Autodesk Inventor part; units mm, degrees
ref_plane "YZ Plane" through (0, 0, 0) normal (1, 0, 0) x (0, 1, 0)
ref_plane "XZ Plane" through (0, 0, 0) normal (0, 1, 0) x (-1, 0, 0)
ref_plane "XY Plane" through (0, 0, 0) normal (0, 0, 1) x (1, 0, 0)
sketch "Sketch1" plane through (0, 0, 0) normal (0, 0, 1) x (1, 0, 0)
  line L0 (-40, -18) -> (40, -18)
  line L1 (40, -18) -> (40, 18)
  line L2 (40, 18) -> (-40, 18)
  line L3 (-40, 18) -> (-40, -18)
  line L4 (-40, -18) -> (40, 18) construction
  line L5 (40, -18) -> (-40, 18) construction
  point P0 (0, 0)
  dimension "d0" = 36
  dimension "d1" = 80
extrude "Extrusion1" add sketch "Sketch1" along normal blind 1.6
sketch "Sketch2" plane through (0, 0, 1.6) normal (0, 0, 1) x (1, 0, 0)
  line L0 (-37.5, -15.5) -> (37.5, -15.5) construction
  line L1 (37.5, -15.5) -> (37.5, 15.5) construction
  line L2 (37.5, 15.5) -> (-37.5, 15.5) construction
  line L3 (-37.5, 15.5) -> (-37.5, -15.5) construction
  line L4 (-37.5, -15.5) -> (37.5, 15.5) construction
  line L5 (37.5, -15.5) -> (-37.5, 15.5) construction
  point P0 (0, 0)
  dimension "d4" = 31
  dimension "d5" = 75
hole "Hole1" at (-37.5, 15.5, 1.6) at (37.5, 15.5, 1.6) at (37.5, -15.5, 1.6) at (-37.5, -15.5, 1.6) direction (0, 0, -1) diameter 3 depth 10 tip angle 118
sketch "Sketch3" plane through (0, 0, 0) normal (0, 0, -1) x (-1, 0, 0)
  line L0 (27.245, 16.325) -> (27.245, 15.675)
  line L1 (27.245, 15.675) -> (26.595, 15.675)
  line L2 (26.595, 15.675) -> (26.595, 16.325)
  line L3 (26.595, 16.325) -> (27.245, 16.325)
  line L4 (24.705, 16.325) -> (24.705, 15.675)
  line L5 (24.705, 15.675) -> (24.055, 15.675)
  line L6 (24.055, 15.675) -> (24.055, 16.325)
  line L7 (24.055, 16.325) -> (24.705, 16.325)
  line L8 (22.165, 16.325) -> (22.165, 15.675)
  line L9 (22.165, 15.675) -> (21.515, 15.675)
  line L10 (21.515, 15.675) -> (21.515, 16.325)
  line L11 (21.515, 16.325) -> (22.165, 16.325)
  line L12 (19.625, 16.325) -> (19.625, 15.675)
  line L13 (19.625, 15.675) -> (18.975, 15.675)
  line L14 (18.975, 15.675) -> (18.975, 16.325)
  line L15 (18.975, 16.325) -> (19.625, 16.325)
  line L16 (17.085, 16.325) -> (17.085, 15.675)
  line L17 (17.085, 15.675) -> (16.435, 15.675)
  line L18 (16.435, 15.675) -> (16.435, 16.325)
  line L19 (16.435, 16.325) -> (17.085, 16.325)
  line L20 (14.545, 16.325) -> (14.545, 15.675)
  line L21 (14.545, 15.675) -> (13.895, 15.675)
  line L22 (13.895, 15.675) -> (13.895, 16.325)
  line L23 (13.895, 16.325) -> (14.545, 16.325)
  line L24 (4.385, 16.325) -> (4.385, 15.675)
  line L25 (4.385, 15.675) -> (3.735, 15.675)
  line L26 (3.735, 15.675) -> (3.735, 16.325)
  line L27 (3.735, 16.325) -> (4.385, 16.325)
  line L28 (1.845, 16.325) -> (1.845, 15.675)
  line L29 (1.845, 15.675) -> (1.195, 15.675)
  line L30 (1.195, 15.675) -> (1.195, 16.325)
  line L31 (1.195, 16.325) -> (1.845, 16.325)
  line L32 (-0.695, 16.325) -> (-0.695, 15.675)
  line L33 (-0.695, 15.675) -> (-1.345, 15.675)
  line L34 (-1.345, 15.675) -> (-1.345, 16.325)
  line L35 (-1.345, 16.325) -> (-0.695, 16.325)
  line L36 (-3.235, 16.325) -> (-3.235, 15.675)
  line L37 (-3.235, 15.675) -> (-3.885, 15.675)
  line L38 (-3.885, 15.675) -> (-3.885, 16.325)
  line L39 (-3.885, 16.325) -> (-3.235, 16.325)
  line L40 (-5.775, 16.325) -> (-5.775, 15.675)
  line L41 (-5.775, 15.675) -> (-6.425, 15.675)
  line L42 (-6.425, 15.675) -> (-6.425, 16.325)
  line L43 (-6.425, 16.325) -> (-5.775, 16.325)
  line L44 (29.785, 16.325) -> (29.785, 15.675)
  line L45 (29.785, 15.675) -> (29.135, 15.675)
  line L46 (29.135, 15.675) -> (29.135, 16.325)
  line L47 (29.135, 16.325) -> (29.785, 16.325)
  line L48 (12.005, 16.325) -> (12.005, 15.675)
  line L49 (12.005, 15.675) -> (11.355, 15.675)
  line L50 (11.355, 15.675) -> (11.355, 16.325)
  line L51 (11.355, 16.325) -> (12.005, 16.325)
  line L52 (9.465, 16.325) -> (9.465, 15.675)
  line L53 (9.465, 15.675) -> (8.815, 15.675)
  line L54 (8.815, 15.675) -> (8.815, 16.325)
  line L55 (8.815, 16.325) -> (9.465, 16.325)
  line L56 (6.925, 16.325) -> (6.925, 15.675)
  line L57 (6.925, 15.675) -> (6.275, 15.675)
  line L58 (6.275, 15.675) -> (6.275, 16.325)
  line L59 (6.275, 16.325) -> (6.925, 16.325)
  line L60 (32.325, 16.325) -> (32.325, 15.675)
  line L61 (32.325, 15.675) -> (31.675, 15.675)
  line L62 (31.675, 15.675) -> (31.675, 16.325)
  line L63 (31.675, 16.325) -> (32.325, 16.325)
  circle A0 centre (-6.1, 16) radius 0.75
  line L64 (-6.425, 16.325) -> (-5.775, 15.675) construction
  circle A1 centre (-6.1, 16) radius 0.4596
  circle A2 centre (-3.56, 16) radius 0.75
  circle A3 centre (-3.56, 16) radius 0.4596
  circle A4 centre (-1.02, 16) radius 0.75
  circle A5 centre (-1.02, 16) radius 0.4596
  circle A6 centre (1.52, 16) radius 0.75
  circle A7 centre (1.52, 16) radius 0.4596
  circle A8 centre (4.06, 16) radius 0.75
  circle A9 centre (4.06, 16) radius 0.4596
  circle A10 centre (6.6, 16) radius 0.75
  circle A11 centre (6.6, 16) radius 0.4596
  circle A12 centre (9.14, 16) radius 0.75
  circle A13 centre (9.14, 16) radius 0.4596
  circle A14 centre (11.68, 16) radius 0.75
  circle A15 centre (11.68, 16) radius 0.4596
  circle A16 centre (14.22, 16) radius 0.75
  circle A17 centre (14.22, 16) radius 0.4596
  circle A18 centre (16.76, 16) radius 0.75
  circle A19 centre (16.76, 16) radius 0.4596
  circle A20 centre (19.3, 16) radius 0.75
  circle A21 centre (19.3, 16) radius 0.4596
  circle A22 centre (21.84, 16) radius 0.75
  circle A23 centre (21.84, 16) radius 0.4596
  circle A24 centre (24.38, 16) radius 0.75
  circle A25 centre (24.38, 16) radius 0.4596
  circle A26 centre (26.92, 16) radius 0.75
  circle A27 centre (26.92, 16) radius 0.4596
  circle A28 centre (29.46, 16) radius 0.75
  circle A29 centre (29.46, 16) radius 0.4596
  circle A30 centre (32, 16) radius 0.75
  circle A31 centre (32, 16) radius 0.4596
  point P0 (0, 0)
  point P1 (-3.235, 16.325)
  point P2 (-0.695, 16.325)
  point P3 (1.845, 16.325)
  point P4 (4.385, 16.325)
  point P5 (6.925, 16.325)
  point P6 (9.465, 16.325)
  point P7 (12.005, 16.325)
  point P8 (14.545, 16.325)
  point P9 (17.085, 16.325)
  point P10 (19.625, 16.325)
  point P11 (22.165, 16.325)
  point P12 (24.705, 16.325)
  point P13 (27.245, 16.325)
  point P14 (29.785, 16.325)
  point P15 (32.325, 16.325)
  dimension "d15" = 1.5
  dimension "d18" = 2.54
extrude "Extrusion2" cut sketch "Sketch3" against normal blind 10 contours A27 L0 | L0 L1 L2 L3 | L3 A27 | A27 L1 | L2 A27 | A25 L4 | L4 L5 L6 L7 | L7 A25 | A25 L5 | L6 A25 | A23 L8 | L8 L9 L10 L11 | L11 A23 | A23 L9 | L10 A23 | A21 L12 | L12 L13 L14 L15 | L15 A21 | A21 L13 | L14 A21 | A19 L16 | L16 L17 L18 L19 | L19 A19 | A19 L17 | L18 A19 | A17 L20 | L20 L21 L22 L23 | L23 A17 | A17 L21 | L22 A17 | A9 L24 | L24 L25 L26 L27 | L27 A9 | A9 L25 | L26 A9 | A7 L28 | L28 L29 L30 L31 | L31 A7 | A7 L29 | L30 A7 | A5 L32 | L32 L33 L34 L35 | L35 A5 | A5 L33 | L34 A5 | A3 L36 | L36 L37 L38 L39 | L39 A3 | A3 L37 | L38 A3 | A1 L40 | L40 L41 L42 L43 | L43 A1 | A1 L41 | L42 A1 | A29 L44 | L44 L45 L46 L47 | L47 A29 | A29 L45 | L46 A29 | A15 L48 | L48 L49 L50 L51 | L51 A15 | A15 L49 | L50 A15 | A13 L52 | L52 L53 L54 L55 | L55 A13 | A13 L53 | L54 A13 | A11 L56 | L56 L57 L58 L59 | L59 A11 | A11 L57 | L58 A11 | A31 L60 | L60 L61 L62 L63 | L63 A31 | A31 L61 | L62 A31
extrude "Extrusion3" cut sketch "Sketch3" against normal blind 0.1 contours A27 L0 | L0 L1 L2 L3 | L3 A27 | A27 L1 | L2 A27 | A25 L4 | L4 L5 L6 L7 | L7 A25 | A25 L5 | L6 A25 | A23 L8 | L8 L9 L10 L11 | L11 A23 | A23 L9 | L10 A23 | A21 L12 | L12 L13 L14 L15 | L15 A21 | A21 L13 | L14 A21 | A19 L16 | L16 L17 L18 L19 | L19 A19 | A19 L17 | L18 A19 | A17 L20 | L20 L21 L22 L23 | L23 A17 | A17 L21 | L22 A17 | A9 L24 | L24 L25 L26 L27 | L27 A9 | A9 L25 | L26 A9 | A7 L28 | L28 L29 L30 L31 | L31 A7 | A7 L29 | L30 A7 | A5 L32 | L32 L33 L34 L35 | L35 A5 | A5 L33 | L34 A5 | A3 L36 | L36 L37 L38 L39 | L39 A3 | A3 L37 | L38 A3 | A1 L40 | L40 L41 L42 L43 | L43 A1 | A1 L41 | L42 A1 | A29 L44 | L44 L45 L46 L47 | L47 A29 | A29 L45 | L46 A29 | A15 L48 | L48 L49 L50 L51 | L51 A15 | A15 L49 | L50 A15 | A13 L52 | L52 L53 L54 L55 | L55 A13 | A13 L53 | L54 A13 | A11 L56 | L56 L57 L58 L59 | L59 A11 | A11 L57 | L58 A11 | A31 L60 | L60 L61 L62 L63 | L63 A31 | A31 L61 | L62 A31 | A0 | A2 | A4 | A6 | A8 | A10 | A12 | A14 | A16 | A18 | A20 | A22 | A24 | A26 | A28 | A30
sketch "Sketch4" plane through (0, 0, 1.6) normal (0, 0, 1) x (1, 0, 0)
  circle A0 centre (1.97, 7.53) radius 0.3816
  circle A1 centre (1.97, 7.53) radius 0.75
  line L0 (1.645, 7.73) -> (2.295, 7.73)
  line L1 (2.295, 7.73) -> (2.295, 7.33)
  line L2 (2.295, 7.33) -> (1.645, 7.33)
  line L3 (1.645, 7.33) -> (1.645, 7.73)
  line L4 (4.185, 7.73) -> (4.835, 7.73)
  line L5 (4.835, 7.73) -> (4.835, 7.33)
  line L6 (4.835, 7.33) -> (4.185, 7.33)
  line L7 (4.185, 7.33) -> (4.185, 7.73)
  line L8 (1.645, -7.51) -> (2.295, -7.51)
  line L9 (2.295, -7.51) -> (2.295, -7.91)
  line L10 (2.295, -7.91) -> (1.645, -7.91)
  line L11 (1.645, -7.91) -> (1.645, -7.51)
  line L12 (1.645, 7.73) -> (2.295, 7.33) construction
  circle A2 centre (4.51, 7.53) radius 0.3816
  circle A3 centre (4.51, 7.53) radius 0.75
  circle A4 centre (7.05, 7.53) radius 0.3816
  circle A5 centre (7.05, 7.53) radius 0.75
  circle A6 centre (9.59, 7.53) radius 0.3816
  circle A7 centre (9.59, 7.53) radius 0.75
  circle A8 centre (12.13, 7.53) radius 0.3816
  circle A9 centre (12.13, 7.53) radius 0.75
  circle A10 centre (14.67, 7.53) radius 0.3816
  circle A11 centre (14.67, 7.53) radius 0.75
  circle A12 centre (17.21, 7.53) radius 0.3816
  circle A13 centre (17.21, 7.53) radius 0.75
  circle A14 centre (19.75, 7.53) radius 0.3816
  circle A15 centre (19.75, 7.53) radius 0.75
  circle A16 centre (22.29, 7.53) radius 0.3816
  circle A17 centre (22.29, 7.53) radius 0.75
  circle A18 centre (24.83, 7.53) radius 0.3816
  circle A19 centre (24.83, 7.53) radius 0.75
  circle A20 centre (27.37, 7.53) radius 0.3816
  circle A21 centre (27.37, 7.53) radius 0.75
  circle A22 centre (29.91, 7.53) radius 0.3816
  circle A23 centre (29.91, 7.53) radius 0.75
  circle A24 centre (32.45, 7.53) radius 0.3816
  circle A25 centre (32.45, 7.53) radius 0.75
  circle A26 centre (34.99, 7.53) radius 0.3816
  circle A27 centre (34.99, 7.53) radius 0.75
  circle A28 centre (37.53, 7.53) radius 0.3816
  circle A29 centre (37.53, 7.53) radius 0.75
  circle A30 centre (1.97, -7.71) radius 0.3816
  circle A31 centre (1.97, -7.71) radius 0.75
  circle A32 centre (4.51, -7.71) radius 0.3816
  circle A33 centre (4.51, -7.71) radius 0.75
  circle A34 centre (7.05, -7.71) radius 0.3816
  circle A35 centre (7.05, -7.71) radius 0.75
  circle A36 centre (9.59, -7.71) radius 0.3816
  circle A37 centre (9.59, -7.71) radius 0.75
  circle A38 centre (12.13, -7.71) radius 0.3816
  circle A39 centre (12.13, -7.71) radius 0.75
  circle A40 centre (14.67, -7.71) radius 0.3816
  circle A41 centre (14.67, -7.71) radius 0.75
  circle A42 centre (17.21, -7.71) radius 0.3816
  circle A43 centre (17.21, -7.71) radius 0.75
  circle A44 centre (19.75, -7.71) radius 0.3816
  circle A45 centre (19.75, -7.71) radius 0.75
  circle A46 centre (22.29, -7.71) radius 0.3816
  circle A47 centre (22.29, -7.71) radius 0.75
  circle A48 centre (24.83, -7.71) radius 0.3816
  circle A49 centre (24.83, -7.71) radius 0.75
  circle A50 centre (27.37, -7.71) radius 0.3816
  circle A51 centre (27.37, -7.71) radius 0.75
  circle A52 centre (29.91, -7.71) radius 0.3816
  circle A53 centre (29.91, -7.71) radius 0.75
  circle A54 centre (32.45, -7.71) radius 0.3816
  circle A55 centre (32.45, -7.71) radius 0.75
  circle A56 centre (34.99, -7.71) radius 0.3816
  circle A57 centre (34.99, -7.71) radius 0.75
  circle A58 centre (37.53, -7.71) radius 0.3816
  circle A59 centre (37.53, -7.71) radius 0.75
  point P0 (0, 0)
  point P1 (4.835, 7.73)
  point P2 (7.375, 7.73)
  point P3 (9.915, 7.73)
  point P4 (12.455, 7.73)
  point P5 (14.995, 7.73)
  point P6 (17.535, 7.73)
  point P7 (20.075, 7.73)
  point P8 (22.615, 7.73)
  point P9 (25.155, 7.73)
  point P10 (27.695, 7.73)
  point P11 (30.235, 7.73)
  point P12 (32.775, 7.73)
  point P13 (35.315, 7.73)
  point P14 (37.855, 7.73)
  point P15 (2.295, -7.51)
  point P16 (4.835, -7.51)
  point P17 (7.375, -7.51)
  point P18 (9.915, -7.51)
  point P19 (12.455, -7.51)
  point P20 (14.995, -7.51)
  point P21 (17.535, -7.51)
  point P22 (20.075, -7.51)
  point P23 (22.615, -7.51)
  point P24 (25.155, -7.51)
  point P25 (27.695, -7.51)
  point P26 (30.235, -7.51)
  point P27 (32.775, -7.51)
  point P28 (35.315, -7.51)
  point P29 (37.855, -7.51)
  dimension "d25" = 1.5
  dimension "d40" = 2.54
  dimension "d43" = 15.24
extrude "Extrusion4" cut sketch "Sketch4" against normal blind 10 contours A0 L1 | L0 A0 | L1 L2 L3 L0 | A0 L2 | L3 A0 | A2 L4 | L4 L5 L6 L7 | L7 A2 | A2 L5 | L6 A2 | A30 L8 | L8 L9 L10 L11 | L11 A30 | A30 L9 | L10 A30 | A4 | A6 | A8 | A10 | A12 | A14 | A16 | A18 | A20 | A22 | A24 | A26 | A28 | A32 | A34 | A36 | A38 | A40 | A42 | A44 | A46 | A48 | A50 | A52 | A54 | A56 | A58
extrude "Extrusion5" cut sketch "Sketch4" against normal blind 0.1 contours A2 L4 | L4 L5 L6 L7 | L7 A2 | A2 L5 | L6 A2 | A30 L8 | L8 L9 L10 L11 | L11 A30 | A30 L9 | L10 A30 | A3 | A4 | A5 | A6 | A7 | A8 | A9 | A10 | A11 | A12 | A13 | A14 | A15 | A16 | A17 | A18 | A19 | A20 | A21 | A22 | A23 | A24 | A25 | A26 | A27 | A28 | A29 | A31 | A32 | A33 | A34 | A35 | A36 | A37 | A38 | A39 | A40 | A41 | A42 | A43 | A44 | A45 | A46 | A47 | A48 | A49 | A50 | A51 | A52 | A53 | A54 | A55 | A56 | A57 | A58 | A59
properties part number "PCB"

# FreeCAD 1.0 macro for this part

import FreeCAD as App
import Part
import Sketcher


def add_polygon(sketch, points):
    """Adds a closed chain of lines whose ends are joined by coincident constraints."""
    first, n = sketch.GeometryCount, len(points)
    for a, b in zip(points, points[1:] + points[:1]):
        sketch.addGeometry(Part.LineSegment(App.Vector(*a, 0), App.Vector(*b, 0)), False)
    for i in range(n):
        sketch.addConstraint(Sketcher.Constraint("Coincident", first + i, 2, first + (i + 1) % n, 1))

doc = App.newDocument("Part")
body = doc.addObject("PartDesign::Body", "Body")

# Sketch on XY plane
sketch1 = body.newObject("Sketcher::SketchObject", "Sketch")
sketch1.AttachmentSupport = (doc.getObject("XY_Plane"), [""])
sketch1.MapMode = "FlatFace"
add_polygon(sketch1, [(-40, 18), (-40, -18), (40, -18), (40, 18)])  # lines 0-3
sketch1.addConstraint(Sketcher.Constraint("Vertical", 0))
sketch1.addConstraint(Sketcher.Constraint("Horizontal", 1))
sketch1.addConstraint(Sketcher.Constraint("Vertical", 2))
sketch1.addConstraint(Sketcher.Constraint("Horizontal", 3))
sketch1.addConstraint(Sketcher.Constraint("Symmetric", 0, 2, 2, 2, -1, 1))
sketch1.addConstraint(Sketcher.Constraint("DistanceX", 1, 1, 1, 2, 80.0))
sketch1.addConstraint(Sketcher.Constraint("DistanceY", 0, 2, 0, 1, 36.0))
pad1 = body.newObject("PartDesign::Pad", "Pad")
pad1.Profile = sketch1
pad1.Length = 1.6

# Sketch on XY plane
sketch2 = body.newObject("Sketcher::SketchObject", "Sketch001")
sketch2.AttachmentSupport = (doc.getObject("XY_Plane"), [""])
sketch2.MapMode = "FlatFace"
sketch2.AttachmentOffset = App.Placement(App.Vector(0, 0, 1.6), App.Rotation())
sketch2.addGeometry(Part.Circle(App.Vector(-37.5, 15.5, 0), App.Vector(0, 0, 1), 1.5), False)
sketch2.addGeometry(Part.Circle(App.Vector(37.5, 15.5, 0), App.Vector(0, 0, 1), 1.5), False)
sketch2.addGeometry(Part.Circle(App.Vector(37.5, -15.5, 0), App.Vector(0, 0, 1), 1.5), False)
sketch2.addGeometry(Part.Circle(App.Vector(-37.5, -15.5, 0), App.Vector(0, 0, 1), 1.5), False)
sketch2.addConstraint(Sketcher.Constraint("Equal", 0, 1))
sketch2.addConstraint(Sketcher.Constraint("Equal", 1, 2))
sketch2.addConstraint(Sketcher.Constraint("Equal", 2, 3))
sketch2.addConstraint(Sketcher.Constraint("Symmetric", 0, 3, 2, 3, -1, 1))
sketch2.addConstraint(Sketcher.Constraint("Symmetric", 1, 3, 3, 3, -1, 1))
sketch2.addConstraint(Sketcher.Constraint("Symmetric", 0, 3, 1, 3, -2))
sketch2.addConstraint(Sketcher.Constraint("Diameter", 0, 3.0))
sketch2.addConstraint(Sketcher.Constraint("DistanceX", 0, 3, 1, 3, 75.0))
sketch2.addConstraint(Sketcher.Constraint("DistanceY", 2, 3, 1, 3, 31.0))
doc.recompute()
hole = body.newObject("PartDesign::Hole", "Hole")
hole.Profile = sketch2
hole.ThreadType = "None"
hole.Diameter = 3
hole.DepthType = "Dimension"
hole.Depth = 10
hole.DrillPoint = "Angled"
hole.DrillPointAngle = 118

# Sketch on XY plane
sketch3 = body.newObject("Sketcher::SketchObject", "Sketch002")
sketch3.AttachmentSupport = (doc.getObject("XY_Plane"), [""])
sketch3.MapMode = "FlatFace"
sketch3.addGeometry(Part.Circle(App.Vector(-26.92, 16, 0), App.Vector(0, 0, 1), 0.4596), False)
sketch3.addGeometry(Part.Circle(App.Vector(-24.38, 16, 0), App.Vector(0, 0, 1), 0.4596), False)
sketch3.addGeometry(Part.Circle(App.Vector(-21.84, 16, 0), App.Vector(0, 0, 1), 0.4596), False)
sketch3.addGeometry(Part.Circle(App.Vector(-19.3, 16, 0), App.Vector(0, 0, 1), 0.4596), False)
sketch3.addGeometry(Part.Circle(App.Vector(-16.76, 16, 0), App.Vector(0, 0, 1), 0.4596), False)
sketch3.addGeometry(Part.Circle(App.Vector(-14.22, 16, 0), App.Vector(0, 0, 1), 0.4596), False)
sketch3.addGeometry(Part.Circle(App.Vector(-4.06, 16, 0), App.Vector(0, 0, 1), 0.4596), False)
sketch3.addGeometry(Part.Circle(App.Vector(-1.52, 16, 0), App.Vector(0, 0, 1), 0.4596), False)
sketch3.addGeometry(Part.Circle(App.Vector(1.02, 16, 0), App.Vector(0, 0, 1), 0.4596), False)
sketch3.addGeometry(Part.Circle(App.Vector(3.56, 16, 0), App.Vector(0, 0, 1), 0.4596), False)
sketch3.addGeometry(Part.Circle(App.Vector(6.1, 16, 0), App.Vector(0, 0, 1), 0.4596), False)
sketch3.addGeometry(Part.Circle(App.Vector(-29.46, 16, 0), App.Vector(0, 0, 1), 0.4596), False)
sketch3.addGeometry(Part.Circle(App.Vector(-11.68, 16, 0), App.Vector(0, 0, 1), 0.4596), False)
sketch3.addGeometry(Part.Circle(App.Vector(-9.14, 16, 0), App.Vector(0, 0, 1), 0.4596), False)
sketch3.addGeometry(Part.Circle(App.Vector(-6.6, 16, 0), App.Vector(0, 0, 1), 0.4596), False)
sketch3.addGeometry(Part.Circle(App.Vector(-32, 16, 0), App.Vector(0, 0, 1), 0.4596), False)
sketch3.addConstraint(Sketcher.Constraint("Equal", 0, 1))
sketch3.addConstraint(Sketcher.Constraint("Equal", 1, 2))
sketch3.addConstraint(Sketcher.Constraint("Equal", 2, 3))
sketch3.addConstraint(Sketcher.Constraint("Equal", 3, 4))
sketch3.addConstraint(Sketcher.Constraint("Equal", 4, 5))
sketch3.addConstraint(Sketcher.Constraint("Equal", 5, 6))
sketch3.addConstraint(Sketcher.Constraint("Equal", 6, 7))
sketch3.addConstraint(Sketcher.Constraint("Equal", 7, 8))
sketch3.addConstraint(Sketcher.Constraint("Equal", 8, 9))
sketch3.addConstraint(Sketcher.Constraint("Equal", 9, 10))
sketch3.addConstraint(Sketcher.Constraint("Equal", 10, 11))
sketch3.addConstraint(Sketcher.Constraint("Equal", 11, 12))
sketch3.addConstraint(Sketcher.Constraint("Equal", 12, 13))
sketch3.addConstraint(Sketcher.Constraint("Equal", 13, 14))
sketch3.addConstraint(Sketcher.Constraint("Equal", 14, 15))
sketch3.addConstraint(Sketcher.Constraint("Horizontal", 0, 3, 1, 3))
sketch3.addConstraint(Sketcher.Constraint("Horizontal", 1, 3, 2, 3))
sketch3.addConstraint(Sketcher.Constraint("Horizontal", 2, 3, 3, 3))
sketch3.addConstraint(Sketcher.Constraint("Horizontal", 3, 3, 4, 3))
sketch3.addConstraint(Sketcher.Constraint("Horizontal", 4, 3, 5, 3))
sketch3.addConstraint(Sketcher.Constraint("Horizontal", 5, 3, 6, 3))
sketch3.addConstraint(Sketcher.Constraint("Horizontal", 6, 3, 7, 3))
sketch3.addConstraint(Sketcher.Constraint("Horizontal", 7, 3, 8, 3))
sketch3.addConstraint(Sketcher.Constraint("Horizontal", 8, 3, 9, 3))
sketch3.addConstraint(Sketcher.Constraint("Horizontal", 9, 3, 10, 3))
sketch3.addConstraint(Sketcher.Constraint("Horizontal", 10, 3, 11, 3))
sketch3.addConstraint(Sketcher.Constraint("Horizontal", 11, 3, 12, 3))
sketch3.addConstraint(Sketcher.Constraint("Horizontal", 12, 3, 13, 3))
sketch3.addConstraint(Sketcher.Constraint("Horizontal", 13, 3, 14, 3))
sketch3.addConstraint(Sketcher.Constraint("Horizontal", 14, 3, 15, 3))
sketch3.addConstraint(Sketcher.Constraint("DistanceX", 0, 3, 1, 3, 2.54))
sketch3.addConstraint(Sketcher.Constraint("DistanceX", 1, 3, 2, 3, 2.54))
sketch3.addConstraint(Sketcher.Constraint("DistanceX", 2, 3, 3, 3, 2.54))
sketch3.addConstraint(Sketcher.Constraint("DistanceX", 3, 3, 4, 3, 2.54))
sketch3.addConstraint(Sketcher.Constraint("DistanceX", 4, 3, 5, 3, 2.54))
sketch3.addConstraint(Sketcher.Constraint("DistanceX", 6, 3, 7, 3, 2.54))
sketch3.addConstraint(Sketcher.Constraint("DistanceX", 7, 3, 8, 3, 2.54))
sketch3.addConstraint(Sketcher.Constraint("DistanceX", 8, 3, 9, 3, 2.54))
sketch3.addConstraint(Sketcher.Constraint("DistanceX", 9, 3, 10, 3, 2.54))
sketch3.addConstraint(Sketcher.Constraint("DistanceX", 11, 3, 0, 3, 2.54))
sketch3.addConstraint(Sketcher.Constraint("DistanceX", 5, 3, 12, 3, 2.54))
sketch3.addConstraint(Sketcher.Constraint("DistanceX", 12, 3, 13, 3, 2.54))
sketch3.addConstraint(Sketcher.Constraint("DistanceX", 14, 3, 6, 3, 2.54))
sketch3.addConstraint(Sketcher.Constraint("DistanceX", 13, 3, 14, 3, 2.54))
sketch3.addConstraint(Sketcher.Constraint("DistanceX", 15, 3, 11, 3, 2.54))
sketch3.addConstraint(Sketcher.Constraint("DistanceY", -1, 1, 0, 3, 16.0))
sketch3.addConstraint(Sketcher.Constraint("DistanceX", 15, 3, -1, 1, 32.0))
sketch3.addConstraint(Sketcher.Constraint("Diameter", 0, 0.9192))
pocket1 = body.newObject("PartDesign::Pocket", "Pocket")
pocket1.Profile = sketch3
pocket1.Length = 10
pocket1.Reversed = True

# Sketch on XY plane
sketch4 = body.newObject("Sketcher::SketchObject", "Sketch003")
sketch4.AttachmentSupport = (doc.getObject("XY_Plane"), [""])
sketch4.MapMode = "FlatFace"
sketch4.addGeometry(Part.Circle(App.Vector(-26.92, 16, 0), App.Vector(0, 0, 1), 0.75), False)
sketch4.addGeometry(Part.Circle(App.Vector(-24.38, 16, 0), App.Vector(0, 0, 1), 0.75), False)
sketch4.addGeometry(Part.Circle(App.Vector(-21.84, 16, 0), App.Vector(0, 0, 1), 0.75), False)
sketch4.addGeometry(Part.Circle(App.Vector(-19.3, 16, 0), App.Vector(0, 0, 1), 0.75), False)
sketch4.addGeometry(Part.Circle(App.Vector(-16.76, 16, 0), App.Vector(0, 0, 1), 0.75), False)
sketch4.addGeometry(Part.Circle(App.Vector(-14.22, 16, 0), App.Vector(0, 0, 1), 0.75), False)
sketch4.addGeometry(Part.Circle(App.Vector(-4.06, 16, 0), App.Vector(0, 0, 1), 0.75), False)
sketch4.addGeometry(Part.Circle(App.Vector(-1.52, 16, 0), App.Vector(0, 0, 1), 0.75), False)
sketch4.addGeometry(Part.Circle(App.Vector(1.02, 16, 0), App.Vector(0, 0, 1), 0.75), False)
sketch4.addGeometry(Part.Circle(App.Vector(3.56, 16, 0), App.Vector(0, 0, 1), 0.75), False)
sketch4.addGeometry(Part.Circle(App.Vector(6.1, 16, 0), App.Vector(0, 0, 1), 0.75), False)
sketch4.addGeometry(Part.Circle(App.Vector(-29.46, 16, 0), App.Vector(0, 0, 1), 0.75), False)
sketch4.addGeometry(Part.Circle(App.Vector(-11.68, 16, 0), App.Vector(0, 0, 1), 0.75), False)
sketch4.addGeometry(Part.Circle(App.Vector(-9.14, 16, 0), App.Vector(0, 0, 1), 0.75), False)
sketch4.addGeometry(Part.Circle(App.Vector(-6.6, 16, 0), App.Vector(0, 0, 1), 0.75), False)
sketch4.addGeometry(Part.Circle(App.Vector(-32, 16, 0), App.Vector(0, 0, 1), 0.75), False)
sketch4.addConstraint(Sketcher.Constraint("Equal", 0, 1))
sketch4.addConstraint(Sketcher.Constraint("Equal", 1, 2))
sketch4.addConstraint(Sketcher.Constraint("Equal", 2, 3))
sketch4.addConstraint(Sketcher.Constraint("Equal", 3, 4))
sketch4.addConstraint(Sketcher.Constraint("Equal", 4, 5))
sketch4.addConstraint(Sketcher.Constraint("Equal", 5, 6))
sketch4.addConstraint(Sketcher.Constraint("Equal", 6, 7))
sketch4.addConstraint(Sketcher.Constraint("Equal", 7, 8))
sketch4.addConstraint(Sketcher.Constraint("Equal", 8, 9))
sketch4.addConstraint(Sketcher.Constraint("Equal", 9, 10))
sketch4.addConstraint(Sketcher.Constraint("Equal", 10, 11))
sketch4.addConstraint(Sketcher.Constraint("Equal", 11, 12))
sketch4.addConstraint(Sketcher.Constraint("Equal", 12, 13))
sketch4.addConstraint(Sketcher.Constraint("Equal", 13, 14))
sketch4.addConstraint(Sketcher.Constraint("Equal", 14, 15))
sketch4.addConstraint(Sketcher.Constraint("Horizontal", 0, 3, 1, 3))
sketch4.addConstraint(Sketcher.Constraint("Horizontal", 1, 3, 2, 3))
sketch4.addConstraint(Sketcher.Constraint("Horizontal", 2, 3, 3, 3))
sketch4.addConstraint(Sketcher.Constraint("Horizontal", 3, 3, 4, 3))
sketch4.addConstraint(Sketcher.Constraint("Horizontal", 4, 3, 5, 3))
sketch4.addConstraint(Sketcher.Constraint("Horizontal", 5, 3, 6, 3))
sketch4.addConstraint(Sketcher.Constraint("Horizontal", 6, 3, 7, 3))
sketch4.addConstraint(Sketcher.Constraint("Horizontal", 7, 3, 8, 3))
sketch4.addConstraint(Sketcher.Constraint("Horizontal", 8, 3, 9, 3))
sketch4.addConstraint(Sketcher.Constraint("Horizontal", 9, 3, 10, 3))
sketch4.addConstraint(Sketcher.Constraint("Horizontal", 10, 3, 11, 3))
sketch4.addConstraint(Sketcher.Constraint("Horizontal", 11, 3, 12, 3))
sketch4.addConstraint(Sketcher.Constraint("Horizontal", 12, 3, 13, 3))
sketch4.addConstraint(Sketcher.Constraint("Horizontal", 13, 3, 14, 3))
sketch4.addConstraint(Sketcher.Constraint("Horizontal", 14, 3, 15, 3))
sketch4.addConstraint(Sketcher.Constraint("Diameter", 0, 1.5))
sketch4.addConstraint(Sketcher.Constraint("DistanceX", 0, 3, 1, 3, 2.54))
sketch4.addConstraint(Sketcher.Constraint("DistanceX", 1, 3, 2, 3, 2.54))
sketch4.addConstraint(Sketcher.Constraint("DistanceX", 2, 3, 3, 3, 2.54))
sketch4.addConstraint(Sketcher.Constraint("DistanceX", 3, 3, 4, 3, 2.54))
sketch4.addConstraint(Sketcher.Constraint("DistanceX", 4, 3, 5, 3, 2.54))
sketch4.addConstraint(Sketcher.Constraint("DistanceX", 6, 3, 7, 3, 2.54))
sketch4.addConstraint(Sketcher.Constraint("DistanceX", 7, 3, 8, 3, 2.54))
sketch4.addConstraint(Sketcher.Constraint("DistanceX", 8, 3, 9, 3, 2.54))
sketch4.addConstraint(Sketcher.Constraint("DistanceX", 9, 3, 10, 3, 2.54))
sketch4.addConstraint(Sketcher.Constraint("DistanceX", 11, 3, 0, 3, 2.54))
sketch4.addConstraint(Sketcher.Constraint("DistanceX", 5, 3, 12, 3, 2.54))
sketch4.addConstraint(Sketcher.Constraint("DistanceX", 12, 3, 13, 3, 2.54))
sketch4.addConstraint(Sketcher.Constraint("DistanceX", 14, 3, 6, 3, 2.54))
sketch4.addConstraint(Sketcher.Constraint("DistanceX", 13, 3, 14, 3, 2.54))
sketch4.addConstraint(Sketcher.Constraint("DistanceX", 15, 3, 11, 3, 2.54))
sketch4.addConstraint(Sketcher.Constraint("DistanceY", -1, 1, 0, 3, 16.0))
sketch4.addConstraint(Sketcher.Constraint("DistanceX", 15, 3, -1, 1, 32.0))
pocket2 = body.newObject("PartDesign::Pocket", "Pocket001")
pocket2.Profile = sketch4
pocket2.Length = 0.1
pocket2.Reversed = True

# Sketch on XY plane
sketch5 = body.newObject("Sketcher::SketchObject", "Sketch004")
sketch5.AttachmentSupport = (doc.getObject("XY_Plane"), [""])
sketch5.MapMode = "FlatFace"
sketch5.AttachmentOffset = App.Placement(App.Vector(0, 0, 1.6), App.Rotation())
sketch5.addGeometry(Part.Circle(App.Vector(1.97, 7.53, 0), App.Vector(0, 0, 1), 0.3816), False)
sketch5.addGeometry(Part.Circle(App.Vector(4.51, 7.53, 0), App.Vector(0, 0, 1), 0.3816), False)
sketch5.addGeometry(Part.Circle(App.Vector(1.97, -7.71, 0), App.Vector(0, 0, 1), 0.3816), False)
sketch5.addGeometry(Part.Circle(App.Vector(7.05, 7.53, 0), App.Vector(0, 0, 1), 0.3816), False)
sketch5.addGeometry(Part.Circle(App.Vector(9.59, 7.53, 0), App.Vector(0, 0, 1), 0.3816), False)
sketch5.addGeometry(Part.Circle(App.Vector(12.13, 7.53, 0), App.Vector(0, 0, 1), 0.3816), False)
sketch5.addGeometry(Part.Circle(App.Vector(14.67, 7.53, 0), App.Vector(0, 0, 1), 0.3816), False)
sketch5.addGeometry(Part.Circle(App.Vector(17.21, 7.53, 0), App.Vector(0, 0, 1), 0.3816), False)
sketch5.addGeometry(Part.Circle(App.Vector(19.75, 7.53, 0), App.Vector(0, 0, 1), 0.3816), False)
sketch5.addGeometry(Part.Circle(App.Vector(22.29, 7.53, 0), App.Vector(0, 0, 1), 0.3816), False)
sketch5.addGeometry(Part.Circle(App.Vector(24.83, 7.53, 0), App.Vector(0, 0, 1), 0.3816), False)
sketch5.addGeometry(Part.Circle(App.Vector(27.37, 7.53, 0), App.Vector(0, 0, 1), 0.3816), False)
sketch5.addGeometry(Part.Circle(App.Vector(29.91, 7.53, 0), App.Vector(0, 0, 1), 0.3816), False)
sketch5.addGeometry(Part.Circle(App.Vector(32.45, 7.53, 0), App.Vector(0, 0, 1), 0.3816), False)
sketch5.addGeometry(Part.Circle(App.Vector(34.99, 7.53, 0), App.Vector(0, 0, 1), 0.3816), False)
sketch5.addGeometry(Part.Circle(App.Vector(37.53, 7.53, 0), App.Vector(0, 0, 1), 0.3816), False)
sketch5.addGeometry(Part.Circle(App.Vector(4.51, -7.71, 0), App.Vector(0, 0, 1), 0.3816), False)
sketch5.addGeometry(Part.Circle(App.Vector(7.05, -7.71, 0), App.Vector(0, 0, 1), 0.3816), False)
sketch5.addGeometry(Part.Circle(App.Vector(9.59, -7.71, 0), App.Vector(0, 0, 1), 0.3816), False)
sketch5.addGeometry(Part.Circle(App.Vector(12.13, -7.71, 0), App.Vector(0, 0, 1), 0.3816), False)
sketch5.addGeometry(Part.Circle(App.Vector(14.67, -7.71, 0), App.Vector(0, 0, 1), 0.3816), False)
sketch5.addGeometry(Part.Circle(App.Vector(17.21, -7.71, 0), App.Vector(0, 0, 1), 0.3816), False)
sketch5.addGeometry(Part.Circle(App.Vector(19.75, -7.71, 0), App.Vector(0, 0, 1), 0.3816), False)
sketch5.addGeometry(Part.Circle(App.Vector(22.29, -7.71, 0), App.Vector(0, 0, 1), 0.3816), False)
sketch5.addGeometry(Part.Circle(App.Vector(24.83, -7.71, 0), App.Vector(0, 0, 1), 0.3816), False)
sketch5.addGeometry(Part.Circle(App.Vector(27.37, -7.71, 0), App.Vector(0, 0, 1), 0.3816), False)
sketch5.addGeometry(Part.Circle(App.Vector(29.91, -7.71, 0), App.Vector(0, 0, 1), 0.3816), False)
sketch5.addGeometry(Part.Circle(App.Vector(32.45, -7.71, 0), App.Vector(0, 0, 1), 0.3816), False)
sketch5.addGeometry(Part.Circle(App.Vector(34.99, -7.71, 0), App.Vector(0, 0, 1), 0.3816), False)
sketch5.addGeometry(Part.Circle(App.Vector(37.53, -7.71, 0), App.Vector(0, 0, 1), 0.3816), False)
sketch5.addConstraint(Sketcher.Constraint("Equal", 0, 1))
sketch5.addConstraint(Sketcher.Constraint("Equal", 1, 2))
sketch5.addConstraint(Sketcher.Constraint("Equal", 2, 3))
sketch5.addConstraint(Sketcher.Constraint("Equal", 3, 4))
sketch5.addConstraint(Sketcher.Constraint("Equal", 4, 5))
sketch5.addConstraint(Sketcher.Constraint("Equal", 5, 6))
sketch5.addConstraint(Sketcher.Constraint("Equal", 6, 7))
sketch5.addConstraint(Sketcher.Constraint("Equal", 7, 8))
sketch5.addConstraint(Sketcher.Constraint("Equal", 8, 9))
sketch5.addConstraint(Sketcher.Constraint("Equal", 9, 10))
sketch5.addConstraint(Sketcher.Constraint("Equal", 10, 11))
sketch5.addConstraint(Sketcher.Constraint("Equal", 11, 12))
sketch5.addConstraint(Sketcher.Constraint("Equal", 12, 13))
sketch5.addConstraint(Sketcher.Constraint("Equal", 13, 14))
sketch5.addConstraint(Sketcher.Constraint("Equal", 14, 15))
sketch5.addConstraint(Sketcher.Constraint("Equal", 15, 16))
sketch5.addConstraint(Sketcher.Constraint("Equal", 16, 17))
sketch5.addConstraint(Sketcher.Constraint("Equal", 17, 18))
sketch5.addConstraint(Sketcher.Constraint("Equal", 18, 19))
sketch5.addConstraint(Sketcher.Constraint("Equal", 19, 20))
sketch5.addConstraint(Sketcher.Constraint("Equal", 20, 21))
sketch5.addConstraint(Sketcher.Constraint("Equal", 21, 22))
sketch5.addConstraint(Sketcher.Constraint("Equal", 22, 23))
sketch5.addConstraint(Sketcher.Constraint("Equal", 23, 24))
sketch5.addConstraint(Sketcher.Constraint("Equal", 24, 25))
sketch5.addConstraint(Sketcher.Constraint("Equal", 25, 26))
sketch5.addConstraint(Sketcher.Constraint("Equal", 26, 27))
sketch5.addConstraint(Sketcher.Constraint("Equal", 27, 28))
sketch5.addConstraint(Sketcher.Constraint("Equal", 28, 29))
sketch5.addConstraint(Sketcher.Constraint("Horizontal", 0, 3, 1, 3))
sketch5.addConstraint(Sketcher.Constraint("Horizontal", 1, 3, 3, 3))
sketch5.addConstraint(Sketcher.Constraint("Horizontal", 3, 3, 4, 3))
sketch5.addConstraint(Sketcher.Constraint("Horizontal", 4, 3, 5, 3))
sketch5.addConstraint(Sketcher.Constraint("Horizontal", 5, 3, 6, 3))
sketch5.addConstraint(Sketcher.Constraint("Horizontal", 6, 3, 7, 3))
sketch5.addConstraint(Sketcher.Constraint("Horizontal", 7, 3, 8, 3))
sketch5.addConstraint(Sketcher.Constraint("Horizontal", 8, 3, 9, 3))
sketch5.addConstraint(Sketcher.Constraint("Horizontal", 9, 3, 10, 3))
sketch5.addConstraint(Sketcher.Constraint("Horizontal", 10, 3, 11, 3))
sketch5.addConstraint(Sketcher.Constraint("Horizontal", 11, 3, 12, 3))
sketch5.addConstraint(Sketcher.Constraint("Horizontal", 12, 3, 13, 3))
sketch5.addConstraint(Sketcher.Constraint("Horizontal", 13, 3, 14, 3))
sketch5.addConstraint(Sketcher.Constraint("Horizontal", 14, 3, 15, 3))
sketch5.addConstraint(Sketcher.Constraint("Horizontal", 2, 3, 16, 3))
sketch5.addConstraint(Sketcher.Constraint("Horizontal", 16, 3, 17, 3))
sketch5.addConstraint(Sketcher.Constraint("Horizontal", 17, 3, 18, 3))
sketch5.addConstraint(Sketcher.Constraint("Horizontal", 18, 3, 19, 3))
sketch5.addConstraint(Sketcher.Constraint("Horizontal", 19, 3, 20, 3))
sketch5.addConstraint(Sketcher.Constraint("Horizontal", 20, 3, 21, 3))
sketch5.addConstraint(Sketcher.Constraint("Horizontal", 21, 3, 22, 3))
sketch5.addConstraint(Sketcher.Constraint("Horizontal", 22, 3, 23, 3))
sketch5.addConstraint(Sketcher.Constraint("Horizontal", 23, 3, 24, 3))
sketch5.addConstraint(Sketcher.Constraint("Horizontal", 24, 3, 25, 3))
sketch5.addConstraint(Sketcher.Constraint("Horizontal", 25, 3, 26, 3))
sketch5.addConstraint(Sketcher.Constraint("Horizontal", 26, 3, 27, 3))
sketch5.addConstraint(Sketcher.Constraint("Horizontal", 27, 3, 28, 3))
sketch5.addConstraint(Sketcher.Constraint("Horizontal", 28, 3, 29, 3))
sketch5.addConstraint(Sketcher.Constraint("Vertical", 0, 3, 2, 3))
sketch5.addConstraint(Sketcher.Constraint("Vertical", 1, 3, 16, 3))
sketch5.addConstraint(Sketcher.Constraint("Vertical", 3, 3, 17, 3))
sketch5.addConstraint(Sketcher.Constraint("Vertical", 4, 3, 18, 3))
sketch5.addConstraint(Sketcher.Constraint("Vertical", 5, 3, 19, 3))
sketch5.addConstraint(Sketcher.Constraint("Vertical", 6, 3, 20, 3))
sketch5.addConstraint(Sketcher.Constraint("Vertical", 7, 3, 21, 3))
sketch5.addConstraint(Sketcher.Constraint("Vertical", 8, 3, 22, 3))
sketch5.addConstraint(Sketcher.Constraint("Vertical", 9, 3, 23, 3))
sketch5.addConstraint(Sketcher.Constraint("Vertical", 10, 3, 24, 3))
sketch5.addConstraint(Sketcher.Constraint("Vertical", 11, 3, 25, 3))
sketch5.addConstraint(Sketcher.Constraint("Vertical", 12, 3, 26, 3))
sketch5.addConstraint(Sketcher.Constraint("Vertical", 13, 3, 27, 3))
sketch5.addConstraint(Sketcher.Constraint("Vertical", 14, 3, 28, 3))
sketch5.addConstraint(Sketcher.Constraint("Vertical", 15, 3, 29, 3))
sketch5.addConstraint(Sketcher.Constraint("DistanceX", 0, 3, 1, 3, 2.54))
sketch5.addConstraint(Sketcher.Constraint("DistanceY", 2, 3, 0, 3, 15.24))
sketch5.addConstraint(Sketcher.Constraint("DistanceX", 1, 3, 3, 3, 2.54))
sketch5.addConstraint(Sketcher.Constraint("DistanceX", 3, 3, 4, 3, 2.54))
sketch5.addConstraint(Sketcher.Constraint("DistanceX", 4, 3, 5, 3, 2.54))
sketch5.addConstraint(Sketcher.Constraint("DistanceX", 5, 3, 6, 3, 2.54))
sketch5.addConstraint(Sketcher.Constraint("DistanceX", 6, 3, 7, 3, 2.54))
sketch5.addConstraint(Sketcher.Constraint("DistanceX", 7, 3, 8, 3, 2.54))
sketch5.addConstraint(Sketcher.Constraint("DistanceX", 8, 3, 9, 3, 2.54))
sketch5.addConstraint(Sketcher.Constraint("DistanceX", 9, 3, 10, 3, 2.54))
sketch5.addConstraint(Sketcher.Constraint("DistanceX", 10, 3, 11, 3, 2.54))
sketch5.addConstraint(Sketcher.Constraint("DistanceX", 11, 3, 12, 3, 2.54))
sketch5.addConstraint(Sketcher.Constraint("DistanceX", 12, 3, 13, 3, 2.54))
sketch5.addConstraint(Sketcher.Constraint("DistanceX", 13, 3, 14, 3, 2.54))
sketch5.addConstraint(Sketcher.Constraint("DistanceX", 14, 3, 15, 3, 2.54))
sketch5.addConstraint(Sketcher.Constraint("Diameter", 0, 0.7632))
sketch5.addConstraint(Sketcher.Constraint("DistanceX", -1, 1, 0, 3, 1.97))
sketch5.addConstraint(Sketcher.Constraint("DistanceY", -1, 1, 0, 3, 7.53))
pocket3 = body.newObject("PartDesign::Pocket", "Pocket002")
pocket3.Profile = sketch5
pocket3.Length = 10

# Sketch on XY plane
sketch6 = body.newObject("Sketcher::SketchObject", "Sketch005")
sketch6.AttachmentSupport = (doc.getObject("XY_Plane"), [""])
sketch6.MapMode = "FlatFace"
sketch6.AttachmentOffset = App.Placement(App.Vector(0, 0, 1.6), App.Rotation())
sketch6.addGeometry(Part.Circle(App.Vector(4.51, 7.53, 0), App.Vector(0, 0, 1), 0.75), False)
sketch6.addGeometry(Part.Circle(App.Vector(1.97, -7.71, 0), App.Vector(0, 0, 1), 0.75), False)
sketch6.addGeometry(Part.Circle(App.Vector(7.05, 7.53, 0), App.Vector(0, 0, 1), 0.75), False)
sketch6.addGeometry(Part.Circle(App.Vector(9.59, 7.53, 0), App.Vector(0, 0, 1), 0.75), False)
sketch6.addGeometry(Part.Circle(App.Vector(12.13, 7.53, 0), App.Vector(0, 0, 1), 0.75), False)
sketch6.addGeometry(Part.Circle(App.Vector(14.67, 7.53, 0), App.Vector(0, 0, 1), 0.75), False)
sketch6.addGeometry(Part.Circle(App.Vector(17.21, 7.53, 0), App.Vector(0, 0, 1), 0.75), False)
sketch6.addGeometry(Part.Circle(App.Vector(19.75, 7.53, 0), App.Vector(0, 0, 1), 0.75), False)
sketch6.addGeometry(Part.Circle(App.Vector(22.29, 7.53, 0), App.Vector(0, 0, 1), 0.75), False)
sketch6.addGeometry(Part.Circle(App.Vector(24.83, 7.53, 0), App.Vector(0, 0, 1), 0.75), False)
sketch6.addGeometry(Part.Circle(App.Vector(27.37, 7.53, 0), App.Vector(0, 0, 1), 0.75), False)
sketch6.addGeometry(Part.Circle(App.Vector(29.91, 7.53, 0), App.Vector(0, 0, 1), 0.75), False)
sketch6.addGeometry(Part.Circle(App.Vector(32.45, 7.53, 0), App.Vector(0, 0, 1), 0.75), False)
sketch6.addGeometry(Part.Circle(App.Vector(34.99, 7.53, 0), App.Vector(0, 0, 1), 0.75), False)
sketch6.addGeometry(Part.Circle(App.Vector(37.53, 7.53, 0), App.Vector(0, 0, 1), 0.75), False)
sketch6.addGeometry(Part.Circle(App.Vector(4.51, -7.71, 0), App.Vector(0, 0, 1), 0.75), False)
sketch6.addGeometry(Part.Circle(App.Vector(7.05, -7.71, 0), App.Vector(0, 0, 1), 0.75), False)
sketch6.addGeometry(Part.Circle(App.Vector(9.59, -7.71, 0), App.Vector(0, 0, 1), 0.75), False)
sketch6.addGeometry(Part.Circle(App.Vector(12.13, -7.71, 0), App.Vector(0, 0, 1), 0.75), False)
sketch6.addGeometry(Part.Circle(App.Vector(14.67, -7.71, 0), App.Vector(0, 0, 1), 0.75), False)
sketch6.addGeometry(Part.Circle(App.Vector(17.21, -7.71, 0), App.Vector(0, 0, 1), 0.75), False)
sketch6.addGeometry(Part.Circle(App.Vector(19.75, -7.71, 0), App.Vector(0, 0, 1), 0.75), False)
sketch6.addGeometry(Part.Circle(App.Vector(22.29, -7.71, 0), App.Vector(0, 0, 1), 0.75), False)
sketch6.addGeometry(Part.Circle(App.Vector(24.83, -7.71, 0), App.Vector(0, 0, 1), 0.75), False)
sketch6.addGeometry(Part.Circle(App.Vector(27.37, -7.71, 0), App.Vector(0, 0, 1), 0.75), False)
sketch6.addGeometry(Part.Circle(App.Vector(29.91, -7.71, 0), App.Vector(0, 0, 1), 0.75), False)
sketch6.addGeometry(Part.Circle(App.Vector(32.45, -7.71, 0), App.Vector(0, 0, 1), 0.75), False)
sketch6.addGeometry(Part.Circle(App.Vector(34.99, -7.71, 0), App.Vector(0, 0, 1), 0.75), False)
sketch6.addGeometry(Part.Circle(App.Vector(37.53, -7.71, 0), App.Vector(0, 0, 1), 0.75), False)
sketch6.addConstraint(Sketcher.Constraint("Equal", 0, 1))
sketch6.addConstraint(Sketcher.Constraint("Equal", 1, 2))
sketch6.addConstraint(Sketcher.Constraint("Equal", 2, 3))
sketch6.addConstraint(Sketcher.Constraint("Equal", 3, 4))
sketch6.addConstraint(Sketcher.Constraint("Equal", 4, 5))
sketch6.addConstraint(Sketcher.Constraint("Equal", 5, 6))
sketch6.addConstraint(Sketcher.Constraint("Equal", 6, 7))
sketch6.addConstraint(Sketcher.Constraint("Equal", 7, 8))
sketch6.addConstraint(Sketcher.Constraint("Equal", 8, 9))
sketch6.addConstraint(Sketcher.Constraint("Equal", 9, 10))
sketch6.addConstraint(Sketcher.Constraint("Equal", 10, 11))
sketch6.addConstraint(Sketcher.Constraint("Equal", 11, 12))
sketch6.addConstraint(Sketcher.Constraint("Equal", 12, 13))
sketch6.addConstraint(Sketcher.Constraint("Equal", 13, 14))
sketch6.addConstraint(Sketcher.Constraint("Equal", 14, 15))
sketch6.addConstraint(Sketcher.Constraint("Equal", 15, 16))
sketch6.addConstraint(Sketcher.Constraint("Equal", 16, 17))
sketch6.addConstraint(Sketcher.Constraint("Equal", 17, 18))
sketch6.addConstraint(Sketcher.Constraint("Equal", 18, 19))
sketch6.addConstraint(Sketcher.Constraint("Equal", 19, 20))
sketch6.addConstraint(Sketcher.Constraint("Equal", 20, 21))
sketch6.addConstraint(Sketcher.Constraint("Equal", 21, 22))
sketch6.addConstraint(Sketcher.Constraint("Equal", 22, 23))
sketch6.addConstraint(Sketcher.Constraint("Equal", 23, 24))
sketch6.addConstraint(Sketcher.Constraint("Equal", 24, 25))
sketch6.addConstraint(Sketcher.Constraint("Equal", 25, 26))
sketch6.addConstraint(Sketcher.Constraint("Equal", 26, 27))
sketch6.addConstraint(Sketcher.Constraint("Equal", 27, 28))
sketch6.addConstraint(Sketcher.Constraint("Horizontal", 0, 3, 2, 3))
sketch6.addConstraint(Sketcher.Constraint("Horizontal", 2, 3, 3, 3))
sketch6.addConstraint(Sketcher.Constraint("Horizontal", 3, 3, 4, 3))
sketch6.addConstraint(Sketcher.Constraint("Horizontal", 4, 3, 5, 3))
sketch6.addConstraint(Sketcher.Constraint("Horizontal", 5, 3, 6, 3))
sketch6.addConstraint(Sketcher.Constraint("Horizontal", 6, 3, 7, 3))
sketch6.addConstraint(Sketcher.Constraint("Horizontal", 7, 3, 8, 3))
sketch6.addConstraint(Sketcher.Constraint("Horizontal", 8, 3, 9, 3))
sketch6.addConstraint(Sketcher.Constraint("Horizontal", 9, 3, 10, 3))
sketch6.addConstraint(Sketcher.Constraint("Horizontal", 10, 3, 11, 3))
sketch6.addConstraint(Sketcher.Constraint("Horizontal", 11, 3, 12, 3))
sketch6.addConstraint(Sketcher.Constraint("Horizontal", 12, 3, 13, 3))
sketch6.addConstraint(Sketcher.Constraint("Horizontal", 13, 3, 14, 3))
sketch6.addConstraint(Sketcher.Constraint("Horizontal", 1, 3, 15, 3))
sketch6.addConstraint(Sketcher.Constraint("Horizontal", 15, 3, 16, 3))
sketch6.addConstraint(Sketcher.Constraint("Horizontal", 16, 3, 17, 3))
sketch6.addConstraint(Sketcher.Constraint("Horizontal", 17, 3, 18, 3))
sketch6.addConstraint(Sketcher.Constraint("Horizontal", 18, 3, 19, 3))
sketch6.addConstraint(Sketcher.Constraint("Horizontal", 19, 3, 20, 3))
sketch6.addConstraint(Sketcher.Constraint("Horizontal", 20, 3, 21, 3))
sketch6.addConstraint(Sketcher.Constraint("Horizontal", 21, 3, 22, 3))
sketch6.addConstraint(Sketcher.Constraint("Horizontal", 22, 3, 23, 3))
sketch6.addConstraint(Sketcher.Constraint("Horizontal", 23, 3, 24, 3))
sketch6.addConstraint(Sketcher.Constraint("Horizontal", 24, 3, 25, 3))
sketch6.addConstraint(Sketcher.Constraint("Horizontal", 25, 3, 26, 3))
sketch6.addConstraint(Sketcher.Constraint("Horizontal", 26, 3, 27, 3))
sketch6.addConstraint(Sketcher.Constraint("Horizontal", 27, 3, 28, 3))
sketch6.addConstraint(Sketcher.Constraint("Vertical", 0, 3, 15, 3))
sketch6.addConstraint(Sketcher.Constraint("Vertical", 2, 3, 16, 3))
sketch6.addConstraint(Sketcher.Constraint("Vertical", 3, 3, 17, 3))
sketch6.addConstraint(Sketcher.Constraint("Vertical", 4, 3, 18, 3))
sketch6.addConstraint(Sketcher.Constraint("Vertical", 5, 3, 19, 3))
sketch6.addConstraint(Sketcher.Constraint("Vertical", 6, 3, 20, 3))
sketch6.addConstraint(Sketcher.Constraint("Vertical", 7, 3, 21, 3))
sketch6.addConstraint(Sketcher.Constraint("Vertical", 8, 3, 22, 3))
sketch6.addConstraint(Sketcher.Constraint("Vertical", 9, 3, 23, 3))
sketch6.addConstraint(Sketcher.Constraint("Vertical", 10, 3, 24, 3))
sketch6.addConstraint(Sketcher.Constraint("Vertical", 11, 3, 25, 3))
sketch6.addConstraint(Sketcher.Constraint("Vertical", 12, 3, 26, 3))
sketch6.addConstraint(Sketcher.Constraint("Vertical", 13, 3, 27, 3))
sketch6.addConstraint(Sketcher.Constraint("Vertical", 14, 3, 28, 3))
sketch6.addConstraint(Sketcher.Constraint("Diameter", 0, 1.5))
sketch6.addConstraint(Sketcher.Constraint("DistanceX", 1, 3, 0, 3, 2.54))
sketch6.addConstraint(Sketcher.Constraint("DistanceY", 1, 3, 0, 3, 15.24))
sketch6.addConstraint(Sketcher.Constraint("DistanceX", 0, 3, 2, 3, 2.54))
sketch6.addConstraint(Sketcher.Constraint("DistanceX", 2, 3, 3, 3, 2.54))
sketch6.addConstraint(Sketcher.Constraint("DistanceX", 3, 3, 4, 3, 2.54))
sketch6.addConstraint(Sketcher.Constraint("DistanceX", 4, 3, 5, 3, 2.54))
sketch6.addConstraint(Sketcher.Constraint("DistanceX", 5, 3, 6, 3, 2.54))
sketch6.addConstraint(Sketcher.Constraint("DistanceX", 6, 3, 7, 3, 2.54))
sketch6.addConstraint(Sketcher.Constraint("DistanceX", 7, 3, 8, 3, 2.54))
sketch6.addConstraint(Sketcher.Constraint("DistanceX", 8, 3, 9, 3, 2.54))
sketch6.addConstraint(Sketcher.Constraint("DistanceX", 9, 3, 10, 3, 2.54))
sketch6.addConstraint(Sketcher.Constraint("DistanceX", 10, 3, 11, 3, 2.54))
sketch6.addConstraint(Sketcher.Constraint("DistanceX", 11, 3, 12, 3, 2.54))
sketch6.addConstraint(Sketcher.Constraint("DistanceX", 12, 3, 13, 3, 2.54))
sketch6.addConstraint(Sketcher.Constraint("DistanceX", 13, 3, 14, 3, 2.54))
sketch6.addConstraint(Sketcher.Constraint("DistanceX", -1, 1, 0, 3, 4.51))
sketch6.addConstraint(Sketcher.Constraint("DistanceY", -1, 1, 0, 3, 7.53))
pocket4 = body.newObject("PartDesign::Pocket", "Pocket003")
pocket4.Profile = sketch6
pocket4.Length = 0.1

doc.recompute()
